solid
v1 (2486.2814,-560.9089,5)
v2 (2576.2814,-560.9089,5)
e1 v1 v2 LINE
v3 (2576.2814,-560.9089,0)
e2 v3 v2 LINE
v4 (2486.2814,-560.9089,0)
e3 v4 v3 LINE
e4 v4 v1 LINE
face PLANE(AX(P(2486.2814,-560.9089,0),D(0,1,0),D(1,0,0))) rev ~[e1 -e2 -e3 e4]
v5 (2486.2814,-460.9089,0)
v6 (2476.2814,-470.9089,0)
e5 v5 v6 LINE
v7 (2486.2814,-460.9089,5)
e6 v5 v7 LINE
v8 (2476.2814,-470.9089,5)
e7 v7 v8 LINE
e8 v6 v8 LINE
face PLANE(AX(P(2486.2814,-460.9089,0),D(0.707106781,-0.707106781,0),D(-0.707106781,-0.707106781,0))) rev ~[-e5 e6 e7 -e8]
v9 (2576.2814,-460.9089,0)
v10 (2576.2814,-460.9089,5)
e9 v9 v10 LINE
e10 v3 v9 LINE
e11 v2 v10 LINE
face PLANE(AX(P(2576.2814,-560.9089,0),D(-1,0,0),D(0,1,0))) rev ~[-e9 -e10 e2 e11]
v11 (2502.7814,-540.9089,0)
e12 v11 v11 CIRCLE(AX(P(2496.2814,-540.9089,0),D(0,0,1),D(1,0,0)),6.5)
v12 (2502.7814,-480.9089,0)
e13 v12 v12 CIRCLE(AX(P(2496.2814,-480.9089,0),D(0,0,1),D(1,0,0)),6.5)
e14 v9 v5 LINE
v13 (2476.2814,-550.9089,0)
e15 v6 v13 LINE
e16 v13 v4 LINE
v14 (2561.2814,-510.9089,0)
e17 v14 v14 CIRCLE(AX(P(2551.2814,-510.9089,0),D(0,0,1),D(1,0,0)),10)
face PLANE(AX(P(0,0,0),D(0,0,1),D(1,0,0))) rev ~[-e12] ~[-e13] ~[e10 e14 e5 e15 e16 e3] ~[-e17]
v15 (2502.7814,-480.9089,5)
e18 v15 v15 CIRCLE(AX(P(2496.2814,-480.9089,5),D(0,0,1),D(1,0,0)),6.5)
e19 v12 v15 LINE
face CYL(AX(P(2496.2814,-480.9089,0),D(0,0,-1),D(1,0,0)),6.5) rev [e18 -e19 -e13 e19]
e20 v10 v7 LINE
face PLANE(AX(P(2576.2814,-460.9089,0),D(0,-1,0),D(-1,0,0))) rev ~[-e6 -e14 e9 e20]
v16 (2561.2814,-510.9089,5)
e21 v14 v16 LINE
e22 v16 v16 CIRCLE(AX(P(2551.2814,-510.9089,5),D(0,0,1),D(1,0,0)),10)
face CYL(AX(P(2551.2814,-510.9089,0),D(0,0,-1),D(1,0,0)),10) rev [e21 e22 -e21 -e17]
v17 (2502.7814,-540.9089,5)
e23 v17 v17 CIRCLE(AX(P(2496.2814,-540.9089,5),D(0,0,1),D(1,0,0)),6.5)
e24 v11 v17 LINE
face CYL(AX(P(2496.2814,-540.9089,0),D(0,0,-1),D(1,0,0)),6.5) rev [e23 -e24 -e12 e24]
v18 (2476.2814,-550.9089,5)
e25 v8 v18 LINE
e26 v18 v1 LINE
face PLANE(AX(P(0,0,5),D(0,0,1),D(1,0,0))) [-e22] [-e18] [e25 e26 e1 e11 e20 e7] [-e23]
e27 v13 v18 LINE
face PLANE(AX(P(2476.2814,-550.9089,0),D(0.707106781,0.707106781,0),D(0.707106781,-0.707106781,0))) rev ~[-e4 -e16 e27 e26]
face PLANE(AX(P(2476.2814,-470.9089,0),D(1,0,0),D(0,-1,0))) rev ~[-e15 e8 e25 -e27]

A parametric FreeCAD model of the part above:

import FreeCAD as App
import Part
import Sketcher

V = App.Vector
Q = App.Units.Quantity

doc = App.newDocument("Part")
params = doc.addObject("Spreadsheet::Sheet", "Params")
for row, (alias, value) in enumerate([
    ("sketch1_diameter", "20 mm"),
    ("sketch1_diameter2", "13 mm"),
    ("sketch1_height", "80 mm"),
    ("sketch1_height2", "100 mm"),
    ("pad1_length", "5 mm"),
], start=1):
    params.set(f"A{row}", alias)
    params.set(f"B{row}", "=" + value)
    params.setAlias(f"B{row}", alias)

body = doc.addObject("PartDesign::Body", "Body")

sketch1 = body.newObject("Sketcher::SketchObject", "Sketch")
sketch1.AttachmentSupport = (doc.getObject("XY_Plane"), [""])
sketch1.MapMode = "FlatFace"
sketch1.addGeometry([
    Part.LineSegment(V(2486.2814, -460.9089, 0), V(2476.2814, -470.9089, 0)),
    Part.LineSegment(V(2476.2814, -470.9089, 0), V(2476.2814, -550.9089, 0)),
    Part.LineSegment(V(2476.2814, -550.9089, 0), V(2486.2814, -560.9089, 0)),
    Part.LineSegment(V(2486.2814, -560.9089, 0), V(2576.2814, -560.9089, 0)),
    Part.LineSegment(V(2576.2814, -560.9089, 0), V(2576.2814, -460.9089, 0)),
    Part.LineSegment(V(2576.2814, -460.9089, 0), V(2486.2814, -460.9089, 0)),
    Part.Circle(V(2551.2814, -510.9089, 0), V(0, 0, 1), 10),
    Part.Circle(V(2496.2814, -540.9089, 0), V(0, 0, 1), 6.5),
    Part.Circle(V(2496.2814, -480.9089, 0), V(0, 0, 1), 6.5),
], False)
sketch1.addConstraint([
    Sketcher.Constraint("Coincident", 0, 2, 1, 1),
    Sketcher.Constraint("Coincident", 1, 2, 2, 1),
    Sketcher.Constraint("Coincident", 2, 2, 3, 1),
    Sketcher.Constraint("Coincident", 3, 2, 4, 1),
    Sketcher.Constraint("Coincident", 4, 2, 5, 1),
    Sketcher.Constraint("Coincident", 5, 2, 0, 1),
    Sketcher.Constraint("Vertical", 1),
    Sketcher.Constraint("Horizontal", 3),
    Sketcher.Constraint("Vertical", 4),
    Sketcher.Constraint("Horizontal", 5),
    Sketcher.Constraint("Equal", 7, 8),
    Sketcher.Constraint("Perpendicular", 0, 2),
    Sketcher.Constraint("Vertical", 7, 3, 8, 3),
    Sketcher.Constraint("Vertical", 2, 2, 5, 2),
    Sketcher.Constraint("Equal", 0, 2),
    Sketcher.Constraint("Diameter", 6, Q("20 mm")),
    Sketcher.Constraint("Diameter", 7, Q("13 mm")),
    Sketcher.Constraint("DistanceY", 1, 2, 1, 1, Q("80 mm")),
    Sketcher.Constraint("DistanceY", 4, 1, 4, 2, Q("100 mm")),
    Sketcher.Constraint("DistanceX", 0, 2, 8, 3, Q("20 mm")),
    Sketcher.Constraint("DistanceY", 2, 2, 7, 3, Q("20 mm")),
    Sketcher.Constraint("DistanceY", 2, 2, 8, 3, Q("80 mm")),
    Sketcher.Constraint("DistanceY", 2, 2, 6, 3, Q("50 mm")),
    Sketcher.Constraint("DistanceX", 6, 3, 3, 2, Q("25 mm")),
    Sketcher.Constraint("DistanceX", 7, 3, 3, 2, Q("80 mm")),
    Sketcher.Constraint("DistanceY", 6, 3, -1, 1, Q("510.909 mm")),
    Sketcher.Constraint("DistanceX", -1, 1, 6, 3, Q("2551.2814 mm")),
])
sketch1.setExpression("Constraints[15]", "Params.sketch1_diameter")
sketch1.setExpression("Constraints[16]", "Params.sketch1_diameter2")
sketch1.setExpression("Constraints[17]", "Params.sketch1_height")
sketch1.setExpression("Constraints[18]", "Params.sketch1_height2")
pad1 = body.newObject("PartDesign::Pad", "Pad")
pad1.Profile = sketch1
pad1.setExpression("Length", "Params.pad1_length")

doc.recompute()
